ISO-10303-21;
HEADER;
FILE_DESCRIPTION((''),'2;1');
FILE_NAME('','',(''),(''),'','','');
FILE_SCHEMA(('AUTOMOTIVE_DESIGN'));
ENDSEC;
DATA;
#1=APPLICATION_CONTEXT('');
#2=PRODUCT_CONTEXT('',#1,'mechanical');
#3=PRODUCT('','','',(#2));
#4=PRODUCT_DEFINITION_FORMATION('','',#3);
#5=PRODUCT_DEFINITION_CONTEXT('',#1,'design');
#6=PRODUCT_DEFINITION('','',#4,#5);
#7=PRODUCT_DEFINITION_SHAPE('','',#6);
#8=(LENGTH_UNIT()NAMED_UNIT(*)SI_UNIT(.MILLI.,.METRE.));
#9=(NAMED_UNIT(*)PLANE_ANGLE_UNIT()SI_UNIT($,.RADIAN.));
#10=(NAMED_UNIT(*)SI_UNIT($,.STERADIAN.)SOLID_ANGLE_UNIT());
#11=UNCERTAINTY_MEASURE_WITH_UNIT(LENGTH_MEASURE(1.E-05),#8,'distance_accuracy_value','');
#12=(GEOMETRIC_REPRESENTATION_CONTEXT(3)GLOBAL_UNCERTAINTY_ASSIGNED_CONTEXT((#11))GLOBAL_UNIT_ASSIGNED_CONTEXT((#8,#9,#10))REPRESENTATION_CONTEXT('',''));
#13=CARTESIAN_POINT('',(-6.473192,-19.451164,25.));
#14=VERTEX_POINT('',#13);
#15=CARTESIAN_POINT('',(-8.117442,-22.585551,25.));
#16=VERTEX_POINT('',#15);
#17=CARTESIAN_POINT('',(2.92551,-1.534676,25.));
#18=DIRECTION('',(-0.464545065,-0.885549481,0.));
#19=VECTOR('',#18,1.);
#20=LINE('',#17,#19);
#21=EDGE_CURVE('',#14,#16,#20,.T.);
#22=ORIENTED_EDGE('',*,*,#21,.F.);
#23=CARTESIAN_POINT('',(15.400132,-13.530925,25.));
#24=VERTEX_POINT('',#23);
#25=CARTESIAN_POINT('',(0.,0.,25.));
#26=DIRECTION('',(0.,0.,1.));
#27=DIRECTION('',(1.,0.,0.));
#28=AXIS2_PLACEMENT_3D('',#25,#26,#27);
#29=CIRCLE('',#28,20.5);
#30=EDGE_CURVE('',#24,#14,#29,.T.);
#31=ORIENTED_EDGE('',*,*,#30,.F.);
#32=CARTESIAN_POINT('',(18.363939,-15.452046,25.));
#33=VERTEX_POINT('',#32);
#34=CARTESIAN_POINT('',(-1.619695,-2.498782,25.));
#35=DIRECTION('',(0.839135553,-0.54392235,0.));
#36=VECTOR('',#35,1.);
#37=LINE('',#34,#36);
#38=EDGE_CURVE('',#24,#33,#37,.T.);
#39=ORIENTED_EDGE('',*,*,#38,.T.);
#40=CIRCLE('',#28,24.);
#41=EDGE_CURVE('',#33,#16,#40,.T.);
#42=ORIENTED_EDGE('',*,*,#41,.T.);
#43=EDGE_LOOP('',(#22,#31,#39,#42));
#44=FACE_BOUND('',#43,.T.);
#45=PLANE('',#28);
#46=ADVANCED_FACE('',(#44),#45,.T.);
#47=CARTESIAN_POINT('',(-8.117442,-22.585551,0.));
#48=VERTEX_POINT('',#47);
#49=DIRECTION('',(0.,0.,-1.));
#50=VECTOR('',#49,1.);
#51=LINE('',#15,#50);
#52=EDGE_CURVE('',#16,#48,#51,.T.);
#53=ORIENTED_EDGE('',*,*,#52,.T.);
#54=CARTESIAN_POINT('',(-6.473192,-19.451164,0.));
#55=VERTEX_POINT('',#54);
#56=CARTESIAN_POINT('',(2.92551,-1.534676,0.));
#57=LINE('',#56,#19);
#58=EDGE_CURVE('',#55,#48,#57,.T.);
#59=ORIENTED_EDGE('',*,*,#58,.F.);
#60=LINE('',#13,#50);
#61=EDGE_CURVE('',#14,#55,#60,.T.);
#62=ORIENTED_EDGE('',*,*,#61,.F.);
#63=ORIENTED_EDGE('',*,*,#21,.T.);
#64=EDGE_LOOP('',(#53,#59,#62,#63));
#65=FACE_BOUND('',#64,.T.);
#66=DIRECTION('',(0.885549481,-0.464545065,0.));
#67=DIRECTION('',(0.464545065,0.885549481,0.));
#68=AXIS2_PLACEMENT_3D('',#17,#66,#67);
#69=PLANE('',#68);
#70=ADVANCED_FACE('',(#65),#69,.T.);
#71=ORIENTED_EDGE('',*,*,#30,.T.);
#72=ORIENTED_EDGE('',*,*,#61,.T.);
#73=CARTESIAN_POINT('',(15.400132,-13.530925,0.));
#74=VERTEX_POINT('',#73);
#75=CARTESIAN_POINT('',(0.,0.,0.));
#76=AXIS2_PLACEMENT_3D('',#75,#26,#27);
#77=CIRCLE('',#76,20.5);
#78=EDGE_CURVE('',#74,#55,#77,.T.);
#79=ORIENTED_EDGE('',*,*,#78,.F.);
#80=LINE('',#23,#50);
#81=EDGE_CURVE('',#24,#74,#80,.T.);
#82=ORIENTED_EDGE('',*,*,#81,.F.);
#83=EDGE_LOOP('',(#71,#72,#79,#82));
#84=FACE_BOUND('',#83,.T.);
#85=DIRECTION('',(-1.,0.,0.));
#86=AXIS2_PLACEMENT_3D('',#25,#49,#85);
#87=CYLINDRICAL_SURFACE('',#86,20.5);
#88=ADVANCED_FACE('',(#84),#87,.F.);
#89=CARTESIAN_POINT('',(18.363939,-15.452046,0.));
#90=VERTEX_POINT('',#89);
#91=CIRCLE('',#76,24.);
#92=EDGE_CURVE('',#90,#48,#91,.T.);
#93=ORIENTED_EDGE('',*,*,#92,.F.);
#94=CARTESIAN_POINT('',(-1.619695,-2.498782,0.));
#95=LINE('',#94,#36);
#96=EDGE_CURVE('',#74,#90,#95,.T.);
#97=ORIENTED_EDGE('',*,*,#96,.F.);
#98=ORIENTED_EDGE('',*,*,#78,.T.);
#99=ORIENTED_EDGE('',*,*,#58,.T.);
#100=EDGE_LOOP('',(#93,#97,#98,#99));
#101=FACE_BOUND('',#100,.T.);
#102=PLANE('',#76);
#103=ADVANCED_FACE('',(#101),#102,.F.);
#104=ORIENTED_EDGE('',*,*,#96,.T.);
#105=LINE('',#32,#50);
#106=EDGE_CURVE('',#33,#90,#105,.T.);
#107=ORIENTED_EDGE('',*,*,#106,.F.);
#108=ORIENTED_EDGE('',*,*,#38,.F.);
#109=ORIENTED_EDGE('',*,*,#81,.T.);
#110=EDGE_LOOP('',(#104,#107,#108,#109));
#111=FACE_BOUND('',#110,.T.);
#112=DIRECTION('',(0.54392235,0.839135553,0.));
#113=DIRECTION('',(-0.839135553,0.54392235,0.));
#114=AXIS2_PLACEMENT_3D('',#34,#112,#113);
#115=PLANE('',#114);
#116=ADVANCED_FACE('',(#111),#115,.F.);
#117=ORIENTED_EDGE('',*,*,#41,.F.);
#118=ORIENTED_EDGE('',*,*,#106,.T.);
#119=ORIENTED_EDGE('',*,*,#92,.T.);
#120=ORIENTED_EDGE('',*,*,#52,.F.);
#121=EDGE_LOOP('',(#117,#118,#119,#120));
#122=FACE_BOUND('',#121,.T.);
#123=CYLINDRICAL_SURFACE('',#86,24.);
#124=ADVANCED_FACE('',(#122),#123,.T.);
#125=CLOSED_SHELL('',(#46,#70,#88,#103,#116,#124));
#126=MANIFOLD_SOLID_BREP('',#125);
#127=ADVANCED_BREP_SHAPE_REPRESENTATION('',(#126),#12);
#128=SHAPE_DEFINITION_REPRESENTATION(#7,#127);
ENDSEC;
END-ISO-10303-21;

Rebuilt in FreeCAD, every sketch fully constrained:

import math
import FreeCAD as App
import Part
import Sketcher
from FreeCAD import Vector
Q = App.Units.Quantity

doc = App.newDocument("Part")
params = doc.addObject("Spreadsheet::Sheet", "Params")
for row, (alias, value) in enumerate([
    ("sketch1_radius", "24 mm"),
    ("sketch1_radius2", "20.5 mm"),
    ("pad1_length", "25 mm"),
], start=1):
    params.set(f"A{row}", alias)
    params.set(f"B{row}", "=" + value)
    params.setAlias(f"B{row}", alias)

body = doc.addObject("PartDesign::Body", "Body")

sketch1 = body.newObject("Sketcher::SketchObject", "Sketch")
sketch1.AttachmentSupport = (doc.getObject("XY_Plane"), [""])
sketch1.MapMode = "FlatFace"
sketch1.addGeometry([
    Part.LineSegment(Vector(-8.117442, -22.585551, 0), Vector(-6.473192, -19.451164, 0)),
    Part.ArcOfCircle(Part.Circle(Vector(0, 0, 0), Vector(0, 0, 1), 20.5), math.radians(0), math.radians(251.592968)),
    Part.ArcOfCircle(Part.Circle(Vector(0, 0, 0), Vector(0, 0, 1), 20.5), math.radians(-41.303316), math.radians(0)),
    Part.LineSegment(Vector(15.400132, -13.530925, 0), Vector(18.363939, -15.452046, 0)),
    Part.ArcOfCircle(Part.Circle(Vector(0, 0, 0), Vector(0, 0, 1), 24), math.radians(-40.078404), math.radians(0)),
    Part.ArcOfCircle(Part.Circle(Vector(0, 0, 0), Vector(0, 0, 1), 24), math.radians(0), math.radians(250.231125)),
], False)
sketch1.addConstraint([
    Sketcher.Constraint("Coincident", 0, 2, 1, 2),
    Sketcher.Constraint("Tangent", 1, 1, 2, 2),
    Sketcher.Constraint("Coincident", 2, 1, 3, 1),
    Sketcher.Constraint("Coincident", 3, 2, 4, 1),
    Sketcher.Constraint("Tangent", 4, 2, 5, 1),
    Sketcher.Constraint("Coincident", 5, 2, 0, 1),
    Sketcher.Constraint("Coincident", 1, 3, -1, 1),
    Sketcher.Constraint("Coincident", 4, 3, -1, 1),
    Sketcher.Constraint("Equal", 1, 2),
    Sketcher.Constraint("Equal", 4, 5),
    Sketcher.Constraint("PointOnObject", 1, 1, -1),
    Sketcher.Constraint("PointOnObject", 4, 2, -1),
    Sketcher.Constraint("Radius", 4, Q("24 mm")),
    Sketcher.Constraint("Radius", 1, Q("20.5 mm")),
    Sketcher.Constraint("DistanceX", -1, 1, 2, 1, Q("15.400132 mm")),
    Sketcher.Constraint("DistanceX", -1, 1, 3, 2, Q("18.363939 mm")),
    Sketcher.Constraint("DistanceX", 5, 2, -1, 1, Q("8.117442 mm")),
    Sketcher.Constraint("DistanceX", 5, 2, 0, 2, Q("1.644249 mm")),
])
sketch1.setExpression("Constraints[12]", "Params.sketch1_radius")
sketch1.setExpression("Constraints[13]", "Params.sketch1_radius2")
pad1 = body.newObject("PartDesign::Pad", "Pad")
pad1.Profile = sketch1
pad1.setExpression("Length", "Params.pad1_length")

doc.recompute()
